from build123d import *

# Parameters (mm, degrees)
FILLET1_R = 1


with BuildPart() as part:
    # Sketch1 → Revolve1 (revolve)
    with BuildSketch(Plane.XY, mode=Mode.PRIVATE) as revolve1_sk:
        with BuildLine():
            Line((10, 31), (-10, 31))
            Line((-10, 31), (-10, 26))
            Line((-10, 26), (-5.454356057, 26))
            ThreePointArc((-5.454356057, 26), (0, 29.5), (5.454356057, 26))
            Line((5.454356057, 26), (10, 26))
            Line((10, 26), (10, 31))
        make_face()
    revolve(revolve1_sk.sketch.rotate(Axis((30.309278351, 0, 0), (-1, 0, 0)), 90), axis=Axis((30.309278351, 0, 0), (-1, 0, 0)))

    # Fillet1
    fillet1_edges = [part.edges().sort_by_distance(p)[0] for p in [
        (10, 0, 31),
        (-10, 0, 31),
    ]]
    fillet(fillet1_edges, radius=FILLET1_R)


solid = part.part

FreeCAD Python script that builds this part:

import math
import FreeCAD as App
import Part
import Sketcher


def edges_at(feature, points):
    """Names of the edges that pass closest to the given points."""
    edges = feature.Shape.Edges
    near = lambda p: min(range(len(edges)), key=lambda i: edges[i].distToShape(Part.Vertex(*p))[0])
    return sorted({f"Edge{near(p) + 1}" for p in points})

doc = App.newDocument("Part")
params = doc.addObject("Spreadsheet::Sheet", "Params")
for row, (alias, value) in enumerate([
    ("sketch1_radius", "6 mm"),
    ("sketch1_width", "20 mm"),
    ("sketch1_height", "5 mm"),
    ("revolution_angle", "360 deg"),
    ("fillet_radius", "1 mm"),
], start=1):
    params.set(f"A{row}", alias)
    params.set(f"B{row}", "=" + value)
    params.setAlias(f"B{row}", alias)

body = doc.addObject("PartDesign::Body", "Body")

# Sketch on XY plane
sketch1 = body.newObject("Sketcher::SketchObject", "Sketch")
sketch1.AttachmentSupport = (doc.getObject("XY_Plane"), [""])
sketch1.MapMode = "FlatFace"
sketch1.addGeometry([
    Part.LineSegment(App.Vector(10, 31, 0), App.Vector(-10, 31, 0)),  # 0
    Part.LineSegment(App.Vector(-10, 31, 0), App.Vector(-10, 26, 0)),  # 1
    Part.LineSegment(App.Vector(-10, 26, 0), App.Vector(-5.5, 26, 0)),  # 2
    Part.ArcOfCircle(Part.Circle(App.Vector(0, 23.5, 0), App.Vector(0, 0, 1), 6), math.radians(25), math.radians(155)),  # 3
    Part.LineSegment(App.Vector(5.5, 26, 0), App.Vector(10, 26, 0)),  # 4
    Part.LineSegment(App.Vector(10, 26, 0), App.Vector(10, 31, 0)),  # 5
], False)
sketch1.addConstraint([
    Sketcher.Constraint("Coincident", 0, 2, 1, 1),
    Sketcher.Constraint("Coincident", 1, 2, 2, 1),
    Sketcher.Constraint("Coincident", 2, 2, 3, 2),
    Sketcher.Constraint("Coincident", 3, 1, 4, 1),
    Sketcher.Constraint("Coincident", 4, 2, 5, 1),
    Sketcher.Constraint("Coincident", 5, 2, 0, 1),
    Sketcher.Constraint("Horizontal", 0),
    Sketcher.Constraint("Vertical", 1),
    Sketcher.Constraint("Horizontal", 2),
    Sketcher.Constraint("Horizontal", 4),
    Sketcher.Constraint("Vertical", 5),
    Sketcher.Constraint("Symmetric", 2, 2, 3, 1, -2),
    Sketcher.Constraint("Equal", 2, 4),
    Sketcher.Constraint("Radius", 3, 6.0),
    Sketcher.Constraint("DistanceX", 0, 2, 0, 1, 20.0),
    Sketcher.Constraint("DistanceY", 1, 2, 1, 1, 5.0),
    Sketcher.Constraint("DistanceY", -1, 1, 0, 2, 31.0),
    Sketcher.Constraint("DistanceY", -1, 1, 3, 3, 23.5),
])
sketch1.setExpression("Constraints[13]", "Params.sketch1_radius")
sketch1.setExpression("Constraints[14]", "Params.sketch1_width")
sketch1.setExpression("Constraints[15]", "Params.sketch1_height")
revolution = body.newObject("PartDesign::Revolution", "Revolution")
revolution.Profile = sketch1
revolution.ReferenceAxis = (sketch1, ["H_Axis"])
revolution.setExpression("Angle", "Params.revolution_angle")
doc.recompute()

fillet = body.newObject("PartDesign::Fillet", "Fillet")
fillet.Base = (revolution, edges_at(revolution, [(10, 0, 31), (-10, 0, 31)]))
fillet.setExpression("Radius", "Params.fillet_radius")

doc.recompute()
